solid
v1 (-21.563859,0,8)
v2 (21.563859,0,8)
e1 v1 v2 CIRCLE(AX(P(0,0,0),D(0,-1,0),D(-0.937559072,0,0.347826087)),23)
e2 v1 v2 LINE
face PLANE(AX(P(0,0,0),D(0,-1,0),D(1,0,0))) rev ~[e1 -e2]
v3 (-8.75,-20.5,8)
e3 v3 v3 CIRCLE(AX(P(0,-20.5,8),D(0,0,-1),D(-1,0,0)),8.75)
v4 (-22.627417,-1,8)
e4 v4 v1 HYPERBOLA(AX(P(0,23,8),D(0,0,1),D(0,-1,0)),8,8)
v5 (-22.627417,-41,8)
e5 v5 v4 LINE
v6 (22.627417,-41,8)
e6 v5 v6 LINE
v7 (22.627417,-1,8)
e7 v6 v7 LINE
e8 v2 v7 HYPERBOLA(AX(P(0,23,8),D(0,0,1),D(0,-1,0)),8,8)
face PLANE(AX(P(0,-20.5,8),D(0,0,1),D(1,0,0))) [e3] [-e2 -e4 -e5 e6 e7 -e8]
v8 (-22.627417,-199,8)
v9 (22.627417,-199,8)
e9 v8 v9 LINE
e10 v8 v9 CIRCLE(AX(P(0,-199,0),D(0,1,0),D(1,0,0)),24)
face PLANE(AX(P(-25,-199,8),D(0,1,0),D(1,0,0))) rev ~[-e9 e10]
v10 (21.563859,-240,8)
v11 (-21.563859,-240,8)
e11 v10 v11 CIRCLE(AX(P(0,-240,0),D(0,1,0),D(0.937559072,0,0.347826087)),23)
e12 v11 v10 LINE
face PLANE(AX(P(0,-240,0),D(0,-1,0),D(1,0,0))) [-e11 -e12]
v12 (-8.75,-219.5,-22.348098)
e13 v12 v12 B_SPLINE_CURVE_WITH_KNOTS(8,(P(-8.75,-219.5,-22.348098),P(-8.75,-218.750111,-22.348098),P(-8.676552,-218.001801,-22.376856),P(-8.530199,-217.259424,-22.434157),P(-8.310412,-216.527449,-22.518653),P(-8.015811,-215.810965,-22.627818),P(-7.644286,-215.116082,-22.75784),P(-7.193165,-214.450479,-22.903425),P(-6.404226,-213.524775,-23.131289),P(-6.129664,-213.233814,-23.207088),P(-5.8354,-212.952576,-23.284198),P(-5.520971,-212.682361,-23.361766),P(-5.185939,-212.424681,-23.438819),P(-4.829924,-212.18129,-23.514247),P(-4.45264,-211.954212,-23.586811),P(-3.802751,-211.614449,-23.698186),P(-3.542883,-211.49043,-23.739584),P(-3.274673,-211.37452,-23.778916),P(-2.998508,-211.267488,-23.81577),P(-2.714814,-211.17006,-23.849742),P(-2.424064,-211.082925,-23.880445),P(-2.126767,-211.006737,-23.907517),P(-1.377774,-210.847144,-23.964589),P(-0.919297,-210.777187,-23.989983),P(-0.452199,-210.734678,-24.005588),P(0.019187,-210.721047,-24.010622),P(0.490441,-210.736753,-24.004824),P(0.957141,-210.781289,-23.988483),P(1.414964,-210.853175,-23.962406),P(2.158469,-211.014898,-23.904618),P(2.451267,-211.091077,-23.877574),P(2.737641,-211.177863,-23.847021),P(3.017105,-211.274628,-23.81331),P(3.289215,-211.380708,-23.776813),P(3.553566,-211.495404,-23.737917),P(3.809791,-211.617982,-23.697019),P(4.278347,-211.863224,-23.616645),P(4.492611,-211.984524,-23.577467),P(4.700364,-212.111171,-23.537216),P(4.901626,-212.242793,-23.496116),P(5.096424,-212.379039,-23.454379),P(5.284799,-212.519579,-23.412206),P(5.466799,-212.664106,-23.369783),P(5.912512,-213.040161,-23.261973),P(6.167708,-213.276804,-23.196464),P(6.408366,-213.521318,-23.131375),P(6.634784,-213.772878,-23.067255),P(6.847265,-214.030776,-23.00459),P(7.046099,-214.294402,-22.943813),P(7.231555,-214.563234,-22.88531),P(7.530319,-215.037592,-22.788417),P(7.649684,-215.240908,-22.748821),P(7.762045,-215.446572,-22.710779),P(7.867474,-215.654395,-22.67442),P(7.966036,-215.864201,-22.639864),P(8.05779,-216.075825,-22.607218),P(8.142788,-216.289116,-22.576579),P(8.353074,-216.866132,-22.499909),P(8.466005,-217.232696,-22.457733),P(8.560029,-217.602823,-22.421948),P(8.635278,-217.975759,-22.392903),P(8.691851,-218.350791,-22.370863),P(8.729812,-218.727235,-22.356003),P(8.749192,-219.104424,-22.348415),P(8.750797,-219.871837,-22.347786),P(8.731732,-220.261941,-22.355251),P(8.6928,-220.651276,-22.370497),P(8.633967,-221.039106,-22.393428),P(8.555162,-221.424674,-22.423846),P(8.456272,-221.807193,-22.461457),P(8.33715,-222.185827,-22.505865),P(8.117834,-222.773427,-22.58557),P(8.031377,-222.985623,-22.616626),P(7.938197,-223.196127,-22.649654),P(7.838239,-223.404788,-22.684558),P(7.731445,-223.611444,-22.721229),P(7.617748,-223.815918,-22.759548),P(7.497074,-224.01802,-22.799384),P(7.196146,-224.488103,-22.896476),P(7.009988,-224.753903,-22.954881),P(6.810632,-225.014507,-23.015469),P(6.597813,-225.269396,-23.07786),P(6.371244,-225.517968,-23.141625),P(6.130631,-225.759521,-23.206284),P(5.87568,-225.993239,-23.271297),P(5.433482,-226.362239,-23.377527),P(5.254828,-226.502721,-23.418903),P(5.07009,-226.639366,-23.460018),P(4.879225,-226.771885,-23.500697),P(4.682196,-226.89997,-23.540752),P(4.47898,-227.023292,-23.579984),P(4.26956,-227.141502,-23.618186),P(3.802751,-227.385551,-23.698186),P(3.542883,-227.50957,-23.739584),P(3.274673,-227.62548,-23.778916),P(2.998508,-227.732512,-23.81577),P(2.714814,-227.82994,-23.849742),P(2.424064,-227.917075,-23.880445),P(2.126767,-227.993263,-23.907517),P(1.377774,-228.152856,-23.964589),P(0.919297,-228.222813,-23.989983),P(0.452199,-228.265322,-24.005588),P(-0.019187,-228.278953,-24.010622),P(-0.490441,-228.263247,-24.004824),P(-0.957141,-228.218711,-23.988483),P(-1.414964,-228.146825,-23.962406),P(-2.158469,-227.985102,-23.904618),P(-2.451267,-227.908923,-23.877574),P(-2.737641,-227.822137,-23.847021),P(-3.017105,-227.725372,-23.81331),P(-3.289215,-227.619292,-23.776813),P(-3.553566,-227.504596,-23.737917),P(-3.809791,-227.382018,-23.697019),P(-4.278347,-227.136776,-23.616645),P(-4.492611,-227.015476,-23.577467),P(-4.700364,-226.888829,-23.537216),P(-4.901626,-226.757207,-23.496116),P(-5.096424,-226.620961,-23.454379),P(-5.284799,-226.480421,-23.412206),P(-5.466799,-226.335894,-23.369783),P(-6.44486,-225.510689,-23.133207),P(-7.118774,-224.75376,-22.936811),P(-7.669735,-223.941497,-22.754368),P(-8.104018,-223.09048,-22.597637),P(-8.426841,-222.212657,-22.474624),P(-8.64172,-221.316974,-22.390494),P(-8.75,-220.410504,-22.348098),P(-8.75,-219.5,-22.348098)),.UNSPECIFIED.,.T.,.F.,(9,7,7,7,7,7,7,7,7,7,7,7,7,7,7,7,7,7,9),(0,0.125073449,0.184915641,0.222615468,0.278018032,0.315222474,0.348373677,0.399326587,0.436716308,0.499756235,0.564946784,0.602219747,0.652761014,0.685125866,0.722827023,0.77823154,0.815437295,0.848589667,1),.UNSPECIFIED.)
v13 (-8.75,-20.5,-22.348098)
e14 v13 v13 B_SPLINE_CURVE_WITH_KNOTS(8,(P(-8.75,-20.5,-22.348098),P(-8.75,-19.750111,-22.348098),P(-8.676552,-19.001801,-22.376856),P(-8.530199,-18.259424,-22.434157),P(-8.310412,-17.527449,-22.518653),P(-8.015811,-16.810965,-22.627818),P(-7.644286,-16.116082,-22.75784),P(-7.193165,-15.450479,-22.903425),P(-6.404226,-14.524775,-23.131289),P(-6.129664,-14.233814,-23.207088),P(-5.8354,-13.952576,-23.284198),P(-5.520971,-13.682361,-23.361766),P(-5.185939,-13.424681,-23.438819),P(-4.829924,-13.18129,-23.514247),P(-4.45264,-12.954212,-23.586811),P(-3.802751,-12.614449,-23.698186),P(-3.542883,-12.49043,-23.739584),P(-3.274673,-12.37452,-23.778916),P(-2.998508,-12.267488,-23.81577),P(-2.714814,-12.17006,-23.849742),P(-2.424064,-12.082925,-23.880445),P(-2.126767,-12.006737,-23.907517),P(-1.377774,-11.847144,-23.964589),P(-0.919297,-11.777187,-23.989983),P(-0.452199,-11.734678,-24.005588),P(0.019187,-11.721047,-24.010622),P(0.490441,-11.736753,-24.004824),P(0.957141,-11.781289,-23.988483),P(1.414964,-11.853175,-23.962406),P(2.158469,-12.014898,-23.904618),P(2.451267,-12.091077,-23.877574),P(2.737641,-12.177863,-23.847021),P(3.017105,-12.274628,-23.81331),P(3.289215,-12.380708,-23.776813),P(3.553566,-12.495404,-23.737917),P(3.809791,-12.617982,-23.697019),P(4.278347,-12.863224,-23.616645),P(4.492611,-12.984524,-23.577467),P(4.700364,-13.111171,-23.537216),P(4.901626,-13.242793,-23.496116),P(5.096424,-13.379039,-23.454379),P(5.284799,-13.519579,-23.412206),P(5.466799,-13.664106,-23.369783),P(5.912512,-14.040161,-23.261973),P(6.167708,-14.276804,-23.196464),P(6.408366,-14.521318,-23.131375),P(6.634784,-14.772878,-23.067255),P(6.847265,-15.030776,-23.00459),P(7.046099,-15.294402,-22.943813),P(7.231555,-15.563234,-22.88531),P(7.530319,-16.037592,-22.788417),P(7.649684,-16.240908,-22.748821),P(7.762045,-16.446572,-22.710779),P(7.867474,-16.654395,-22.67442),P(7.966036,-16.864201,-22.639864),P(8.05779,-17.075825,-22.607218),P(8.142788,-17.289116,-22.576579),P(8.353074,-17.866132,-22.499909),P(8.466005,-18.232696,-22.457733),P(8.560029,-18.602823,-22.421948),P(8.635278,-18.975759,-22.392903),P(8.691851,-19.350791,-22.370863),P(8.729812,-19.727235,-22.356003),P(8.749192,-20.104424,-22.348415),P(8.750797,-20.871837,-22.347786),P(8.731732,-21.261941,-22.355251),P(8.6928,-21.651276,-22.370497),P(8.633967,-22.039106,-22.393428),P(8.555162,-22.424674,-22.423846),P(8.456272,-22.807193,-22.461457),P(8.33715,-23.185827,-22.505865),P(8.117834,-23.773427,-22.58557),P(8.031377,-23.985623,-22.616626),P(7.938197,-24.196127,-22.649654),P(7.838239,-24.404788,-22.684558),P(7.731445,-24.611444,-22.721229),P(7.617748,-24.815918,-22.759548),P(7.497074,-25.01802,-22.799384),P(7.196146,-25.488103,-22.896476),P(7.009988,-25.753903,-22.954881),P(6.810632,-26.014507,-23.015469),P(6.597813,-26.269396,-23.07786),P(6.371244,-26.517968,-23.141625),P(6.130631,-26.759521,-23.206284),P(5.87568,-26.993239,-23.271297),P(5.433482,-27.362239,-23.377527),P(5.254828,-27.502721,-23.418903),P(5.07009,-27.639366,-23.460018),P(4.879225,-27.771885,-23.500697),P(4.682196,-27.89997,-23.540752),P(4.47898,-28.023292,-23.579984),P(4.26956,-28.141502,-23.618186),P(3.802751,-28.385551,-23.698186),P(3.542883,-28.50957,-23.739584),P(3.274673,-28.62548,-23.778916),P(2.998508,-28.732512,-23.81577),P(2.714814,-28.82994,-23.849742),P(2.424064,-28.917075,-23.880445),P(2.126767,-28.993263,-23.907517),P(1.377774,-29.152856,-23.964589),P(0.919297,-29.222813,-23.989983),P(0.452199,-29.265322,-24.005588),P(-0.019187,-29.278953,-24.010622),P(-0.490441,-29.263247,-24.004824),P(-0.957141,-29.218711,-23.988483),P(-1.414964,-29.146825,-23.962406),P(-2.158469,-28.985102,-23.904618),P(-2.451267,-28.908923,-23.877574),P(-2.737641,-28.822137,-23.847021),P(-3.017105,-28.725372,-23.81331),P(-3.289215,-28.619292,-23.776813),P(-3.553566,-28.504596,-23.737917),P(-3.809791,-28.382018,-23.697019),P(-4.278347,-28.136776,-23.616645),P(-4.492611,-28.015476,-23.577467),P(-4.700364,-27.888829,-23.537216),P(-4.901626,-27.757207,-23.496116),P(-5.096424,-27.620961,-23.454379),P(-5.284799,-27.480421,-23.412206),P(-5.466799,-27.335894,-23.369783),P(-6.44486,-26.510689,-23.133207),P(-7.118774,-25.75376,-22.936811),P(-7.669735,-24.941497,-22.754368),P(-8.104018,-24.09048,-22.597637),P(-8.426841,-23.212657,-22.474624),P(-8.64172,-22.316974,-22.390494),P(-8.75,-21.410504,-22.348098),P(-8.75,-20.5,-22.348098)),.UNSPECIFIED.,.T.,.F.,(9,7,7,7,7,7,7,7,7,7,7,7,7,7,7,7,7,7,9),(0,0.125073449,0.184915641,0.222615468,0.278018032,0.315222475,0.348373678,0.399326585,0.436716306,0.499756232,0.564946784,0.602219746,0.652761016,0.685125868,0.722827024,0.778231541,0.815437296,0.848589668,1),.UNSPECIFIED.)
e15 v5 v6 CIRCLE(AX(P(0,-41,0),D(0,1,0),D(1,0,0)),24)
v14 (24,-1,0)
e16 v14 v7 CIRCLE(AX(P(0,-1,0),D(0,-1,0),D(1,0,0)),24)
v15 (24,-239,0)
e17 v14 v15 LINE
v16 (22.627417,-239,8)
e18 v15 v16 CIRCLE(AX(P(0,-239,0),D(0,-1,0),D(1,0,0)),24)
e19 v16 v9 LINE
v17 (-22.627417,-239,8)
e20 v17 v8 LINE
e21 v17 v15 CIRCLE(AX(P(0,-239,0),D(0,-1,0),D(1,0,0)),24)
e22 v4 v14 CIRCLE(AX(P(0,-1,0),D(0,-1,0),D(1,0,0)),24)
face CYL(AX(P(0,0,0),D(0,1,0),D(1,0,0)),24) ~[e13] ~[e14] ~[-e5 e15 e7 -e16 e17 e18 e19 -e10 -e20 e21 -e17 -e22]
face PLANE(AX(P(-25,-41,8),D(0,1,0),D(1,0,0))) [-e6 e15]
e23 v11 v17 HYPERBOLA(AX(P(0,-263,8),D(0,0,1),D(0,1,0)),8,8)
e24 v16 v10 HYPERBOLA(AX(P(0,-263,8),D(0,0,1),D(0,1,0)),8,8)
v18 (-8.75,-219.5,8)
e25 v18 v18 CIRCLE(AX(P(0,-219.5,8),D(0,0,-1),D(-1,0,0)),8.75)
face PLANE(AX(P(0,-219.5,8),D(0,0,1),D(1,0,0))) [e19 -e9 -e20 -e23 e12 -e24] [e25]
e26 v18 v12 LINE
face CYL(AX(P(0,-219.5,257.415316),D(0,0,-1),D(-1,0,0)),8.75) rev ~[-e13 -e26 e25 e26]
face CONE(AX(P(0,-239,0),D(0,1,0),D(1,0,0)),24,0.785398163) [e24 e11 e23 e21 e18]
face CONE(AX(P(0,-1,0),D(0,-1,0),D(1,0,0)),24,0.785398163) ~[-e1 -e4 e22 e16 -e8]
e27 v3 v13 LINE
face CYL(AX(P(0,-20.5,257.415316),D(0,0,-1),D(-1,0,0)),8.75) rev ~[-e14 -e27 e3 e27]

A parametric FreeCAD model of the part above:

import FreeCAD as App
import Part
import Sketcher
from FreeCAD import Vector

doc = App.newDocument("Part")
body = doc.addObject("PartDesign::Body", "Body")

# Sketch on XZ plane
sketch1 = doc.addObject("Sketcher::SketchObject", "Sketch")
body.addObject(sketch1)
sketch1.AttachmentSupport = (doc.XZ_Plane, [""])
sketch1.MapMode = "FlatFace"
sketch1.addGeometry(Part.Circle(Vector(0, 0, 0), Vector(0, 0, 1), 24), False)
sketch1.addConstraint(Sketcher.Constraint("Coincident", 0, 3, -1, 1))
sketch1.addConstraint(Sketcher.Constraint("Diameter", 0, 48.0))
pad1 = doc.addObject("PartDesign::Pad", "Pad")
body.addObject(pad1)
pad1.Profile = sketch1
pad1.Length = 240
doc.recompute()

chamfer = doc.addObject("PartDesign::Chamfer", "Chamfer")
body.addObject(chamfer)
chamfer.Base = (pad1, ["Edge1"])
chamfer.UseAllEdges = True
chamfer.Size = 1

# Sketch on XY plane
sketch2 = doc.addObject("Sketcher::SketchObject", "Sketch001")
body.addObject(sketch2)
sketch2.AttachmentSupport = (doc.XY_Plane, [""])
sketch2.MapMode = "FlatFace"
sketch2.AttachmentOffset = App.Placement(Vector(0, 0, 8), App.Rotation())
sketch2.addGeometry(Part.LineSegment(Vector(-25, 0, 0), Vector(-25, -41, 0)), False)
sketch2.addGeometry(Part.LineSegment(Vector(-25, -41, 0), Vector(25, -41, 0)), False)
sketch2.addGeometry(Part.LineSegment(Vector(25, -41, 0), Vector(25, 0, 0)), False)
sketch2.addGeometry(Part.LineSegment(Vector(25, 0, 0), Vector(-25, 0, 0)), False)
sketch2.addGeometry(Part.LineSegment(Vector(-25, -199, 0), Vector(-25, -240, 0)), False)
sketch2.addGeometry(Part.LineSegment(Vector(-25, -240, 0), Vector(25, -240, 0)), False)
sketch2.addGeometry(Part.LineSegment(Vector(25, -240, 0), Vector(25, -199, 0)), False)
sketch2.addGeometry(Part.LineSegment(Vector(25, -199, 0), Vector(-25, -199, 0)), False)
sketch2.addConstraint(Sketcher.Constraint("Coincident", 0, 2, 1, 1))
sketch2.addConstraint(Sketcher.Constraint("Coincident", 1, 2, 2, 1))
sketch2.addConstraint(Sketcher.Constraint("Coincident", 2, 2, 3, 1))
sketch2.addConstraint(Sketcher.Constraint("Coincident", 3, 2, 0, 1))
sketch2.addConstraint(Sketcher.Constraint("Coincident", 4, 2, 5, 1))
sketch2.addConstraint(Sketcher.Constraint("Coincident", 5, 2, 6, 1))
sketch2.addConstraint(Sketcher.Constraint("Coincident", 6, 2, 7, 1))
sketch2.addConstraint(Sketcher.Constraint("Coincident", 7, 2, 4, 1))
sketch2.addConstraint(Sketcher.Constraint("Vertical", 0))
sketch2.addConstraint(Sketcher.Constraint("Horizontal", 1))
sketch2.addConstraint(Sketcher.Constraint("Vertical", 2))
sketch2.addConstraint(Sketcher.Constraint("Horizontal", 3))
sketch2.addConstraint(Sketcher.Constraint("Vertical", 4))
sketch2.addConstraint(Sketcher.Constraint("Horizontal", 5))
sketch2.addConstraint(Sketcher.Constraint("Vertical", 6))
sketch2.addConstraint(Sketcher.Constraint("Horizontal", 7))
sketch2.addConstraint(Sketcher.Constraint("Symmetric", 2, 2, 3, 2, -1, 1))
sketch2.addConstraint(Sketcher.Constraint("Vertical", 3, 2, 4, 2))
sketch2.addConstraint(Sketcher.Constraint("Vertical", 2, 2, 5, 2))
sketch2.addConstraint(Sketcher.Constraint("Equal", 2, 4))
sketch2.addConstraint(Sketcher.Constraint("DistanceX", 1, 1, 1, 2, 50.0))
sketch2.addConstraint(Sketcher.Constraint("DistanceY", 0, 2, 0, 1, 41.0))
sketch2.addConstraint(Sketcher.Constraint("DistanceY", 4, 2, -1, 1, 240.0))
pocket1 = doc.addObject("PartDesign::Pocket", "Pocket")
body.addObject(pocket1)
pocket1.Profile = sketch2
pocket1.Length = 125
pocket1.Reversed = True

# Sketch on XY plane
sketch3 = doc.addObject("Sketcher::SketchObject", "Sketch002")
body.addObject(sketch3)
sketch3.AttachmentSupport = (doc.XY_Plane, [""])
sketch3.MapMode = "FlatFace"
sketch3.AttachmentOffset = App.Placement(Vector(0, 0, 8), App.Rotation())
sketch3.addGeometry(Part.Circle(Vector(0, -20.5, 0), Vector(0, 0, 1), 8.75), False)
sketch3.addGeometry(Part.Circle(Vector(0, -219.5, 0), Vector(0, 0, 1), 8.75), False)
sketch3.addConstraint(Sketcher.Constraint("Equal", 0, 1))
sketch3.addConstraint(Sketcher.Constraint("PointOnObject", 0, 3, -2))
sketch3.addConstraint(Sketcher.Constraint("PointOnObject", 1, 3, -2))
sketch3.addConstraint(Sketcher.Constraint("Diameter", 0, 17.5))
sketch3.addConstraint(Sketcher.Constraint("DistanceY", 1, 3, 0, 3, 199.0))
sketch3.addConstraint(Sketcher.Constraint("DistanceY", 0, 3, -1, 1, 20.5))
doc.recompute()
hole = doc.addObject("PartDesign::Hole", "Hole")
body.addObject(hole)
hole.Profile = sketch3
hole.ThreadType = "None"
hole.Diameter = 17.5
hole.DepthType = "ThroughAll"

doc.recompute()
